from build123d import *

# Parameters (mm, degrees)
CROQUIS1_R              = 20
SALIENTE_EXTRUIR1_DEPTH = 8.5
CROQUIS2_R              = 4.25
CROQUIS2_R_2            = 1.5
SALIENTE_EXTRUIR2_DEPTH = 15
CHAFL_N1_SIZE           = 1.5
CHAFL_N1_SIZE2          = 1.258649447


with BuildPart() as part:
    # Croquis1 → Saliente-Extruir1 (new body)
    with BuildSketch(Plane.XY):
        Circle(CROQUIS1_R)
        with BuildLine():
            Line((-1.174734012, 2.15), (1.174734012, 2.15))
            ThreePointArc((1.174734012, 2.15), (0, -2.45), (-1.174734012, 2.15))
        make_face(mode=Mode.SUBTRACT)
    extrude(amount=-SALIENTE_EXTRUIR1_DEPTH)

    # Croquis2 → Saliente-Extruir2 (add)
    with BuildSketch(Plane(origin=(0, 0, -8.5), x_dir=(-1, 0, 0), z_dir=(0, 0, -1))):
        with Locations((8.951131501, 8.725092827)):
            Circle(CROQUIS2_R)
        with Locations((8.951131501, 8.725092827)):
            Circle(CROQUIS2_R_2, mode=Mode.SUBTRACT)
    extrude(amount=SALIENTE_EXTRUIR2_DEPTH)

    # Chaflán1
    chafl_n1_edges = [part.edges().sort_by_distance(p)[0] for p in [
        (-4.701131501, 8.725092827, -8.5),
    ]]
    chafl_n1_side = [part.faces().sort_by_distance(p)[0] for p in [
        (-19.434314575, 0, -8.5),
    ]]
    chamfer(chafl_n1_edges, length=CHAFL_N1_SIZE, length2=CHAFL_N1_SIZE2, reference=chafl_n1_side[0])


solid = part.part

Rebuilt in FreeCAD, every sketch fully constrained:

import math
import FreeCAD as App
import Part
import Sketcher
from FreeCAD import Vector


def edges_at(feature, points):
    """Names of the edges that pass closest to the given points."""
    edges = feature.Shape.Edges
    near = lambda p: min(range(len(edges)), key=lambda i: edges[i].distToShape(Part.Vertex(*p))[0])
    return sorted({f"Edge{near(p) + 1}" for p in points})

doc = App.newDocument("Part")
params = doc.addObject("Spreadsheet::Sheet", "Params")
for row, (alias, value) in enumerate([
    ("sketch1_diameter", "40 mm"),
    ("sketch1_radius", "2.45 mm"),
    ("pad1_length", "8.5 mm"),
    ("sketch2_diameter", "3 mm"),
    ("sketch2_diameter2", "8.5 mm"),
    ("pad2_length", "15 mm"),
    ("chamfer_size", "1.5 mm"),
    ("chamfer_size2", "1.258649 mm"),
], start=1):
    params.set(f"A{row}", alias)
    params.set(f"B{row}", "=" + value)
    params.setAlias(f"B{row}", alias)

body = doc.addObject("PartDesign::Body", "Body")

sketch1 = doc.addObject("Sketcher::SketchObject", "Sketch")
body.addObject(sketch1)
sketch1.AttachmentSupport = (doc.XY_Plane, [""])
sketch1.MapMode = "FlatFace"
sketch1.addGeometry(Part.Circle(Vector(0, 0, 0), Vector(0, 0, 1), 20), False)
sketch1.addGeometry(Part.ArcOfCircle(Part.Circle(Vector(0, 0, 0), Vector(0, 0, 1), 2.5), math.radians(119), math.radians(421)), False)
sketch1.addGeometry(Part.LineSegment(Vector(-1.2, 2.1, 0), Vector(1.2, 2.1, 0)), False)
sketch1.addConstraint(Sketcher.Constraint("Coincident", 1, 1, 2, 1))
sketch1.addConstraint(Sketcher.Constraint("Coincident", 2, 2, 1, 2))
sketch1.addConstraint(Sketcher.Constraint("Horizontal", 2))
sketch1.addConstraint(Sketcher.Constraint("Coincident", 0, 3, -1, 1))
sketch1.addConstraint(Sketcher.Constraint("Coincident", 1, 3, -1, 1))
sketch1.addConstraint(Sketcher.Constraint("Diameter", 0, 40.0))
sketch1.addConstraint(Sketcher.Constraint("Radius", 1, 2.45))
sketch1.addConstraint(Sketcher.Constraint("DistanceY", -1, 1, 1, 1, 2.15))
sketch1.setExpression("Constraints[5]", "Params.sketch1_diameter")
sketch1.setExpression("Constraints[6]", "Params.sketch1_radius")
pad1 = doc.addObject("PartDesign::Pad", "Pad")
body.addObject(pad1)
pad1.Profile = sketch1
pad1.setExpression("Length", "Params.pad1_length")
pad1.Reversed = True

sketch2 = doc.addObject("Sketcher::SketchObject", "Sketch001")
body.addObject(sketch2)
sketch2.AttachmentSupport = (doc.XY_Plane, [""])
sketch2.MapMode = "FlatFace"
sketch2.AttachmentOffset = App.Placement(Vector(0, 0, -8.5), App.Rotation())
sketch2.addGeometry(Part.Circle(Vector(-9, 8.7, 0), Vector(0, 0, 1), 4.2), False)
sketch2.addGeometry(Part.Circle(Vector(-9, 8.7, 0), Vector(0, 0, 1), 1.5), False)
sketch2.addConstraint(Sketcher.Constraint("Coincident", 1, 3, 0, 3))
sketch2.addConstraint(Sketcher.Constraint("Diameter", 1, 3.0))
sketch2.addConstraint(Sketcher.Constraint("Diameter", 0, 8.5))
sketch2.addConstraint(Sketcher.Constraint("DistanceX", 0, 3, -1, 1, 8.951132))
sketch2.addConstraint(Sketcher.Constraint("DistanceY", -1, 1, 0, 3, 8.725093))
sketch2.setExpression("Constraints[1]", "Params.sketch2_diameter")
sketch2.setExpression("Constraints[2]", "Params.sketch2_diameter2")
pad2 = doc.addObject("PartDesign::Pad", "Pad001")
body.addObject(pad2)
pad2.Profile = sketch2
pad2.setExpression("Length", "Params.pad2_length")
pad2.Reversed = True
doc.recompute()

chamfer = doc.addObject("PartDesign::Chamfer", "Chamfer")
body.addObject(chamfer)
chamfer.Base = (pad2, edges_at(pad2, [(-4.701, 8.725, -8.5)]))
chamfer.ChamferType = "Two distances"
chamfer.setExpression("Size", "Params.chamfer_size")
chamfer.setExpression("Size2", "Params.chamfer_size2")

doc.recompute()
